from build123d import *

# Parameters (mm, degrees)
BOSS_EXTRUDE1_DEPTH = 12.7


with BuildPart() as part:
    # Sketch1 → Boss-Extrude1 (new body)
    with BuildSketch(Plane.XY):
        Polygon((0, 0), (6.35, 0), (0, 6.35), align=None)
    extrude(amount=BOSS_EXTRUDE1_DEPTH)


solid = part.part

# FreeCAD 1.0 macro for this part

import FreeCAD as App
import Part
import Sketcher

V = App.Vector
Q = App.Units.Quantity


def add_polygon(sketch, points):
    """Adds a closed chain of lines whose ends are joined by coincident constraints."""
    first, n = sketch.GeometryCount, len(points)
    for a, b in zip(points, points[1:] + points[:1]):
        sketch.addGeometry(Part.LineSegment(App.Vector(*a, 0), App.Vector(*b, 0)), False)
    for i in range(n):
        sketch.addConstraint(Sketcher.Constraint("Coincident", first + i, 2, first + (i + 1) % n, 1))

doc = App.newDocument("Part")
body = doc.addObject("PartDesign::Body", "Body")

sketch1 = body.newObject("Sketcher::SketchObject", "Sketch")
sketch1.AttachmentSupport = (doc.getObject("XY_Plane"), [""])
sketch1.MapMode = "FlatFace"
add_polygon(sketch1, [(0, 0), (6, 0), (0, 6)])
sketch1.addConstraint(Sketcher.Constraint("Horizontal", 0))
sketch1.addConstraint(Sketcher.Constraint("Vertical", 2))
sketch1.addConstraint(Sketcher.Constraint("Coincident", 2, 2, -1, 1))
sketch1.addConstraint(Sketcher.Constraint("Equal", 0, 2))
sketch1.addConstraint(Sketcher.Constraint("DistanceX", 0, 1, 0, 2, Q("0.25 in")))
pad1 = body.newObject("PartDesign::Pad", "Pad")
pad1.Profile = sketch1
pad1.Length = Q("0.5 in")

doc.recompute()
